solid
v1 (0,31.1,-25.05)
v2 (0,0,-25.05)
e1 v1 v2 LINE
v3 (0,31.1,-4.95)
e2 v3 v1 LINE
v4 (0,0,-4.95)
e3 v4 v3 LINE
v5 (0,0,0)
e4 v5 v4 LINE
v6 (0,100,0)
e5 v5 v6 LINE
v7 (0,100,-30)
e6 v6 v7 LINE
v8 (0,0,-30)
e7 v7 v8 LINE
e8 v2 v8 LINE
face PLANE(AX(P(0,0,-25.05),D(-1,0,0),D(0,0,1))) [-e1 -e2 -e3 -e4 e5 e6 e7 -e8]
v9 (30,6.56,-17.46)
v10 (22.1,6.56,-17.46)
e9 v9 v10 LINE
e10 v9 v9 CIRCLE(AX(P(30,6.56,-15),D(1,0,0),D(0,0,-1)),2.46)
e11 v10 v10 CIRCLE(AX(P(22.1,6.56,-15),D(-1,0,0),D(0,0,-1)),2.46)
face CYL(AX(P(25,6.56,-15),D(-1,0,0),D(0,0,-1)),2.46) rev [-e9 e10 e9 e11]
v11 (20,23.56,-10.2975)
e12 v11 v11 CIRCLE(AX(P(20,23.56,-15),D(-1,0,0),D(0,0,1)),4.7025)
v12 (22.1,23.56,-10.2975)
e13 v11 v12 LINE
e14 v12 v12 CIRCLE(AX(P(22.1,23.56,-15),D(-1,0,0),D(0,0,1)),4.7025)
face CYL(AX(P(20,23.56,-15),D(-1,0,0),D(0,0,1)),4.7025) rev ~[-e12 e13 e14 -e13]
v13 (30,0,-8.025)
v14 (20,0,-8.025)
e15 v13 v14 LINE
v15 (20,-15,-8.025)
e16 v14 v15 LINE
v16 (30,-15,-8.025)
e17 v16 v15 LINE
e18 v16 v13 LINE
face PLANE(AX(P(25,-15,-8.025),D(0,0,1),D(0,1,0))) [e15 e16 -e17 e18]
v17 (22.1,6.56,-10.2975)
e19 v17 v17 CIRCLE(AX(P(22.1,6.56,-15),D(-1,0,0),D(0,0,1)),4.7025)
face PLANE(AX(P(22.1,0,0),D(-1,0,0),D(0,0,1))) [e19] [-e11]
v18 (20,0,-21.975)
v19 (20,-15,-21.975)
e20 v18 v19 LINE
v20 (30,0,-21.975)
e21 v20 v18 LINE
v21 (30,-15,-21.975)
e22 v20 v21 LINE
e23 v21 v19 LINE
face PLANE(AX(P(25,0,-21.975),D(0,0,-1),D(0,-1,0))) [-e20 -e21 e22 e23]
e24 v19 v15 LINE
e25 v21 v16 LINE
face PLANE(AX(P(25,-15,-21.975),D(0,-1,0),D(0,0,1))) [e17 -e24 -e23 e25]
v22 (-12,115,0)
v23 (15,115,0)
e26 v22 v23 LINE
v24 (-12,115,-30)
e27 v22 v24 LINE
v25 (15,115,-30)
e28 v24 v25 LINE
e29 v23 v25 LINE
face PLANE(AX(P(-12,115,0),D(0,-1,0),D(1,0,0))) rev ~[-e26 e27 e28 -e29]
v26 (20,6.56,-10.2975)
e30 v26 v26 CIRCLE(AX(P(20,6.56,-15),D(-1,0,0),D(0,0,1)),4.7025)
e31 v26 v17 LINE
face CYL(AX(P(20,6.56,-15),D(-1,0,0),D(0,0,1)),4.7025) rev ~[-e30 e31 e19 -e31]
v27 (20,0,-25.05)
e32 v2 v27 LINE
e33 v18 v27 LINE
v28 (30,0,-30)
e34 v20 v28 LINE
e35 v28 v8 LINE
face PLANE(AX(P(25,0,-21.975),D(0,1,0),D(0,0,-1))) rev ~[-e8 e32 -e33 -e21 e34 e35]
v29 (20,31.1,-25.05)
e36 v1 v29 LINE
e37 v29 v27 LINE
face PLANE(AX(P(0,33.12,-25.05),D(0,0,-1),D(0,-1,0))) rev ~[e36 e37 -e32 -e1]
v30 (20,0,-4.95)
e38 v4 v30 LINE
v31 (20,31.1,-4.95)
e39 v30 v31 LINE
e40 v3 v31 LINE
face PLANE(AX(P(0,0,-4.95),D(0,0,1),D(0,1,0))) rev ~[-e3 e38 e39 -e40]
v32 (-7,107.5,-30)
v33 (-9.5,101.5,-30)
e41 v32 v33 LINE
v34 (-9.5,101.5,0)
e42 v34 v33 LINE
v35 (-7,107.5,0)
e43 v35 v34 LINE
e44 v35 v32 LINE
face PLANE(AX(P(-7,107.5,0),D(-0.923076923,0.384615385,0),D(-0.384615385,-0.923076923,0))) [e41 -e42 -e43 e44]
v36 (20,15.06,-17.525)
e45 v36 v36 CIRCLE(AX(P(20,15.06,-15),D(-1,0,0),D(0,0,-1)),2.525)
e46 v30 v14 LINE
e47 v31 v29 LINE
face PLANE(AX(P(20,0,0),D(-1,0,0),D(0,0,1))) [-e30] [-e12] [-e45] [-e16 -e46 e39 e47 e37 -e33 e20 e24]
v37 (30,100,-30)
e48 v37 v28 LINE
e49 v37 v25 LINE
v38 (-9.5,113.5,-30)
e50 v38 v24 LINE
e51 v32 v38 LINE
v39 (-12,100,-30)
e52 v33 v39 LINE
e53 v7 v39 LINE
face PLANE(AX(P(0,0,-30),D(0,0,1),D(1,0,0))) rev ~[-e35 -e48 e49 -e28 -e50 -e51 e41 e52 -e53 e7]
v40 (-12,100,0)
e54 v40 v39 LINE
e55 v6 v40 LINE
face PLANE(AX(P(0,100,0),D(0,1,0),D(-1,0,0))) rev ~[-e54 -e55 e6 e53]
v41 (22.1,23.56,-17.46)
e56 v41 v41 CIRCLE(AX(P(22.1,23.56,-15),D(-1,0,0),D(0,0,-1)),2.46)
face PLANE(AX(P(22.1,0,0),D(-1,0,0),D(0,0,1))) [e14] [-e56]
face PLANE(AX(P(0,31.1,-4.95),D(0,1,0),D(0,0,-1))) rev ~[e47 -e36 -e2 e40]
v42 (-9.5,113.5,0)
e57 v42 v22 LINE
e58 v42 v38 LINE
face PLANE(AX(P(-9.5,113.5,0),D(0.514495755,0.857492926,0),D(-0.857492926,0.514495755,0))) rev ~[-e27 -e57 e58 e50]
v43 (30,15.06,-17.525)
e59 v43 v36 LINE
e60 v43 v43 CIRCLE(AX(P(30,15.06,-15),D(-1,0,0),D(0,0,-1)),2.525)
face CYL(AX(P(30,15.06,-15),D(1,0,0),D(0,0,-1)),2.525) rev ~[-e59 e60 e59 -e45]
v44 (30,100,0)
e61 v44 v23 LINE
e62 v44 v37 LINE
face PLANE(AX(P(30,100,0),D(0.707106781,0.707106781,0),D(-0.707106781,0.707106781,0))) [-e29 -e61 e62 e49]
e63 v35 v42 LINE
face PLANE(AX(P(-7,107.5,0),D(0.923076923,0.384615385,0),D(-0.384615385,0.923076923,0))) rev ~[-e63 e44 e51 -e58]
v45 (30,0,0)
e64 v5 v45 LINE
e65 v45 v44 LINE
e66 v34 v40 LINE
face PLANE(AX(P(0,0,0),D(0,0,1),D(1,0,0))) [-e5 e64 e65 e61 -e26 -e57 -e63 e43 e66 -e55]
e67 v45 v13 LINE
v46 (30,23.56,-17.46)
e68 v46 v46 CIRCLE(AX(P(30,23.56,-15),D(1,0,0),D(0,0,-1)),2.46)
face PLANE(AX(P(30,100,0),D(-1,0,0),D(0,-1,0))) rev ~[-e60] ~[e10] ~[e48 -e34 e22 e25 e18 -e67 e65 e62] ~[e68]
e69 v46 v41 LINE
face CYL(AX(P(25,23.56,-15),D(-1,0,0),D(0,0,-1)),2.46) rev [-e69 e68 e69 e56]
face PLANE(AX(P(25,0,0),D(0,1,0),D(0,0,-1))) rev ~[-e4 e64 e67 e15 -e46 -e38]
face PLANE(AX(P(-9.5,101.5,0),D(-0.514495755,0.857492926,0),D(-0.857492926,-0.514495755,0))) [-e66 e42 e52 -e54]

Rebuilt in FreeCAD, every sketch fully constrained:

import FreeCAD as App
import Part
import Sketcher

doc = App.newDocument("Part")
body = doc.addObject("PartDesign::Body", "Body")

sketch1 = body.newObject("Sketcher::SketchObject", "Sketch")
sketch1.AttachmentSupport = (doc.getObject("XY_Plane"), [""])
sketch1.MapMode = "FlatFace"
sketch1.addGeometry([
    Part.LineSegment(App.Vector(0, 40, 0), App.Vector(0, 0, 0)),
    Part.LineSegment(App.Vector(0, 0, 0), App.Vector(25, 0, 0)),
    Part.LineSegment(App.Vector(25, 0, 0), App.Vector(25, 40, 0)),
    Part.LineSegment(App.Vector(25, 40, 0), App.Vector(0, 40, 0)),
], False)
sketch1.addConstraint([
    Sketcher.Constraint("Coincident", 0, 2, 1, 1),
    Sketcher.Constraint("Coincident", 1, 2, 2, 1),
    Sketcher.Constraint("Coincident", 2, 2, 3, 1),
    Sketcher.Constraint("Coincident", 3, 2, 0, 1),
    Sketcher.Constraint("Vertical", 0),
    Sketcher.Constraint("Horizontal", 1),
    Sketcher.Constraint("Vertical", 2),
    Sketcher.Constraint("Horizontal", 3),
    Sketcher.Constraint("Coincident", 0, 2, -1, 1),
    Sketcher.Constraint("DistanceX", 1, 1, 1, 2, 25.0),
    Sketcher.Constraint("DistanceY", 0, 2, 0, 1, 40.0),
])
pad1 = body.newObject("PartDesign::Pad", "Pad")
pad1.Profile = sketch1
pad1.Length = 30
pad1.Reversed = True

sketch2 = body.newObject("Sketcher::SketchObject", "Sketch001")
sketch2.AttachmentSupport = (doc.getObject("YZ_Plane"), [""])
sketch2.MapMode = "FlatFace"
sketch2.AttachmentOffset = App.Placement(App.Vector(0, 0, 25), App.Rotation())
sketch2.addGeometry(Part.Circle(App.Vector(6.6, -15, 0), App.Vector(0, 0, 1), 2.5), False)
sketch2.addConstraint([
    Sketcher.Constraint("Diameter", 0, 4.92),
    Sketcher.Constraint("DistanceY", 0, 3, -1, 1, 15.0),
    Sketcher.Constraint("DistanceX", -1, 1, 0, 3, 6.56),
])
pocket1 = body.newObject("PartDesign::Pocket", "Pocket")
pocket1.Profile = sketch2
pocket1.Length = 30

sketch3 = body.newObject("Sketcher::SketchObject", "Sketch002")
sketch3.AttachmentSupport = (doc.getObject("YZ_Plane"), [""])
sketch3.MapMode = "FlatFace"
sketch3.addGeometry([
    Part.LineSegment(App.Vector(0, -25, 0), App.Vector(0, -5, 0)),
    Part.LineSegment(App.Vector(0, -5, 0), App.Vector(33, -5, 0)),
    Part.LineSegment(App.Vector(33, -5, 0), App.Vector(33, -25, 0)),
    Part.LineSegment(App.Vector(33, -25, 0), App.Vector(0, -25, 0)),
], False)
sketch3.addConstraint([
    Sketcher.Constraint("Coincident", 0, 2, 1, 1),
    Sketcher.Constraint("Coincident", 1, 2, 2, 1),
    Sketcher.Constraint("Coincident", 2, 2, 3, 1),
    Sketcher.Constraint("Coincident", 3, 2, 0, 1),
    Sketcher.Constraint("Vertical", 0),
    Sketcher.Constraint("Horizontal", 1),
    Sketcher.Constraint("Vertical", 2),
    Sketcher.Constraint("Horizontal", 3),
    Sketcher.Constraint("PointOnObject", 0, 2, -2),
    Sketcher.Constraint("DistanceY", 0, 1, 0, 2, 20.1),
    Sketcher.Constraint("DistanceX", 1, 1, 1, 2, 33.12),
    Sketcher.Constraint("DistanceY", 0, 2, -1, 1, 4.95),
])
pocket2 = body.newObject("PartDesign::Pocket", "Pocket001")
pocket2.Profile = sketch3
pocket2.Length = 20
pocket2.Reversed = True

sketch4 = body.newObject("Sketcher::SketchObject", "Sketch003")
sketch4.AttachmentSupport = (doc.getObject("XZ_Plane"), [""])
sketch4.MapMode = "FlatFace"
sketch4.addGeometry([
    Part.LineSegment(App.Vector(25, -8, 0), App.Vector(20, -8, 0)),
    Part.LineSegment(App.Vector(20, -8, 0), App.Vector(20, -22, 0)),
    Part.LineSegment(App.Vector(20, -22, 0), App.Vector(25, -22, 0)),
    Part.LineSegment(App.Vector(25, -22, 0), App.Vector(25, -8, 0)),
], False)
sketch4.addConstraint([
    Sketcher.Constraint("Coincident", 0, 2, 1, 1),
    Sketcher.Constraint("Coincident", 1, 2, 2, 1),
    Sketcher.Constraint("Coincident", 2, 2, 3, 1),
    Sketcher.Constraint("Coincident", 3, 2, 0, 1),
    Sketcher.Constraint("Horizontal", 0),
    Sketcher.Constraint("Vertical", 1),
    Sketcher.Constraint("Horizontal", 2),
    Sketcher.Constraint("Vertical", 3),
    Sketcher.Constraint("DistanceY", 1, 2, 1, 1, 13.95),
    Sketcher.Constraint("DistanceX", 0, 2, 0, 1, 5.0),
    Sketcher.Constraint("DistanceX", -1, 1, 0, 2, 20.0),
    Sketcher.Constraint("DistanceY", 0, 2, -1, 1, 8.025),
])
pad2 = body.newObject("PartDesign::Pad", "Pad001")
pad2.Profile = sketch4
pad2.Length = 15

sketch5 = body.newObject("Sketcher::SketchObject", "Sketch004")
sketch5.AttachmentSupport = (doc.getObject("YZ_Plane"), [""])
sketch5.MapMode = "FlatFace"
sketch5.AttachmentOffset = App.Placement(App.Vector(0, 0, 20), App.Rotation())
sketch5.addGeometry([
    Part.Circle(App.Vector(6.6, -15, 0), App.Vector(0, 0, 1), 4.7),
    Part.Circle(App.Vector(6.6, -15, 0), App.Vector(0, 0, 1), 2.5),
], False)
sketch5.addConstraint([
    Sketcher.Constraint("Coincident", 1, 3, 0, 3),
    Sketcher.Constraint("Diameter", 0, 9.405),
    Sketcher.Constraint("Diameter", 1, 4.92),
    Sketcher.Constraint("DistanceY", 0, 3, -1, 1, 15.0),
    Sketcher.Constraint("DistanceX", -1, 1, 0, 3, 6.56),
])
pocket3 = body.newObject("PartDesign::Pocket", "Pocket002")
pocket3.Profile = sketch5
pocket3.Length = 2.1
pocket3.Reversed = True

sketch6 = body.newObject("Sketcher::SketchObject", "Sketch005")
sketch6.AttachmentSupport = (doc.getObject("YZ_Plane"), [""])
sketch6.MapMode = "FlatFace"
sketch6.AttachmentOffset = App.Placement(App.Vector(0, 0, 25), App.Rotation())
sketch6.addGeometry(Part.Circle(App.Vector(23.6, -15, 0), App.Vector(0, 0, 1), 2.5), False)
sketch6.addConstraint([
    Sketcher.Constraint("Diameter", 0, 4.92),
    Sketcher.Constraint("DistanceY", 0, 3, -1, 1, 15.0),
    Sketcher.Constraint("DistanceX", -1, 1, 0, 3, 23.56),
])
pocket4 = body.newObject("PartDesign::Pocket", "Pocket003")
pocket4.Profile = sketch6
pocket4.Length = 10

sketch7 = body.newObject("Sketcher::SketchObject", "Sketch006")
sketch7.AttachmentSupport = (doc.getObject("YZ_Plane"), [""])
sketch7.MapMode = "FlatFace"
sketch7.AttachmentOffset = App.Placement(App.Vector(0, 0, 20), App.Rotation())
sketch7.addGeometry([
    Part.Circle(App.Vector(23.6, -15, 0), App.Vector(0, 0, 1), 4.7),
    Part.Circle(App.Vector(23.6, -15, 0), App.Vector(0, 0, 1), 2.5),
], False)
sketch7.addConstraint([
    Sketcher.Constraint("Coincident", 1, 3, 0, 3),
    Sketcher.Constraint("Diameter", 0, 9.405),
    Sketcher.Constraint("Diameter", 1, 4.92),
    Sketcher.Constraint("DistanceY", 0, 3, -1, 1, 15.0),
    Sketcher.Constraint("DistanceX", -1, 1, 0, 3, 23.56),
])
pocket5 = body.newObject("PartDesign::Pocket", "Pocket004")
pocket5.Profile = sketch7
pocket5.Length = 2.1
pocket5.Reversed = True

sketch8 = body.newObject("Sketcher::SketchObject", "Sketch007")
sketch8.AttachmentSupport = (doc.getObject("YZ_Plane"), [""])
sketch8.MapMode = "FlatFace"
sketch8.AttachmentOffset = App.Placement(App.Vector(0, 0, 25), App.Rotation())
sketch8.addGeometry([
    Part.LineSegment(App.Vector(0, -30, 0), App.Vector(40, -30, 0)),
    Part.LineSegment(App.Vector(40, -30, 0), App.Vector(40, 0, 0)),
    Part.LineSegment(App.Vector(40, 0, 0), App.Vector(0, 0, 0)),
    Part.LineSegment(App.Vector(0, 0, 0), App.Vector(0, -8, 0)),
    Part.LineSegment(App.Vector(0, -8, 0), App.Vector(-15, -8, 0)),
    Part.LineSegment(App.Vector(-15, -8, 0), App.Vector(-15, -22, 0)),
    Part.LineSegment(App.Vector(-15, -22, 0), App.Vector(0, -22, 0)),
    Part.LineSegment(App.Vector(0, -22, 0), App.Vector(0, -30, 0)),
    Part.Circle(App.Vector(6.6, -15, 0), App.Vector(0, 0, 1), 2.5),
    Part.Circle(App.Vector(23.6, -15, 0), App.Vector(0, 0, 1), 2.5),
], False)
sketch8.addConstraint([
    Sketcher.Constraint("Coincident", 0, 2, 1, 1),
    Sketcher.Constraint("Coincident", 1, 2, 2, 1),
    Sketcher.Constraint("Coincident", 2, 2, 3, 1),
    Sketcher.Constraint("Coincident", 3, 2, 4, 1),
    Sketcher.Constraint("Coincident", 4, 2, 5, 1),
    Sketcher.Constraint("Coincident", 5, 2, 6, 1),
    Sketcher.Constraint("Coincident", 6, 2, 7, 1),
    Sketcher.Constraint("Coincident", 7, 2, 0, 1),
    Sketcher.Constraint("Horizontal", 0),
    Sketcher.Constraint("Vertical", 1),
    Sketcher.Constraint("Horizontal", 2),
    Sketcher.Constraint("Vertical", 3),
    Sketcher.Constraint("Horizontal", 4),
    Sketcher.Constraint("Vertical", 5),
    Sketcher.Constraint("Horizontal", 6),
    Sketcher.Constraint("Vertical", 7),
    Sketcher.Constraint("Coincident", 2, 2, -1, 1),
    Sketcher.Constraint("Equal", 8, 9),
    Sketcher.Constraint("PointOnObject", 6, 2, -2),
    Sketcher.Constraint("Horizontal", 8, 3, 9, 3),
    Sketcher.Constraint("Equal", 3, 7),
    Sketcher.Constraint("Diameter", 8, 4.92),
    Sketcher.Constraint("DistanceX", 0, 1, 0, 2, 40.0),
    Sketcher.Constraint("DistanceX", 4, 2, 4, 1, 15.0),
    Sketcher.Constraint("DistanceY", 1, 1, 1, 2, 30.0),
    Sketcher.Constraint("DistanceY", 8, 3, -1, 1, 15.0),
    Sketcher.Constraint("DistanceX", 8, 3, 9, 3, 17.0),
    Sketcher.Constraint("DistanceY", 5, 2, 5, 1, 13.95),
    Sketcher.Constraint("DistanceX", -1, 1, 8, 3, 6.56),
])
pad3 = body.newObject("PartDesign::Pad", "Pad002")
pad3.Profile = sketch8
pad3.Length = 5

sketch9 = body.newObject("Sketcher::SketchObject", "Sketch008")
sketch9.AttachmentSupport = (doc.getObject("XZ_Plane"), [""])
sketch9.MapMode = "FlatFace"
sketch9.AttachmentOffset = App.Placement(App.Vector(0, 0, -40), App.Rotation())
sketch9.addGeometry([
    Part.LineSegment(App.Vector(30, -30, 0), App.Vector(0, -30, 0)),
    Part.LineSegment(App.Vector(0, -30, 0), App.Vector(0, 0, 0)),
    Part.LineSegment(App.Vector(0, 0, 0), App.Vector(30, 0, 0)),
    Part.LineSegment(App.Vector(30, 0, 0), App.Vector(30, -30, 0)),
], False)
sketch9.addConstraint([
    Sketcher.Constraint("Coincident", 0, 2, 1, 1),
    Sketcher.Constraint("Coincident", 1, 2, 2, 1),
    Sketcher.Constraint("Coincident", 2, 2, 3, 1),
    Sketcher.Constraint("Coincident", 3, 2, 0, 1),
    Sketcher.Constraint("Horizontal", 0),
    Sketcher.Constraint("Vertical", 1),
    Sketcher.Constraint("Horizontal", 2),
    Sketcher.Constraint("Vertical", 3),
    Sketcher.Constraint("Coincident", 1, 2, -1, 1),
    Sketcher.Constraint("Equal", 2, 1),
    Sketcher.Constraint("DistanceX", 0, 2, 0, 1, 30.0),
])
pad4 = body.newObject("PartDesign::Pad", "Pad003")
pad4.Profile = sketch9
pad4.Length = 30
pad4.Reversed = True

sketch10 = body.newObject("Sketcher::SketchObject", "Sketch009")
sketch10.AttachmentSupport = (doc.getObject("YZ_Plane"), [""])
sketch10.MapMode = "FlatFace"
sketch10.AttachmentOffset = App.Placement(App.Vector(0, 0, 30), App.Rotation())
sketch10.addGeometry(Part.Circle(App.Vector(15.1, -15, 0), App.Vector(0, 0, 1), 2.5), False)
sketch10.addConstraint([
    Sketcher.Constraint("Diameter", 0, 5.05),
    Sketcher.Constraint("DistanceY", 0, 3, -1, 1, 15.0),
    Sketcher.Constraint("DistanceX", -1, 1, 0, 3, 15.06),
])
pocket6 = body.newObject("PartDesign::Pocket", "Pocket005")
pocket6.Profile = sketch10
pocket6.Length = 30

sketch11 = body.newObject("Sketcher::SketchObject", "Sketch010")
sketch11.AttachmentSupport = (doc.getObject("XY_Plane"), [""])
sketch11.MapMode = "FlatFace"
sketch11.addGeometry([
    Part.LineSegment(App.Vector(0, 70, 0), App.Vector(30, 70, 0)),
    Part.LineSegment(App.Vector(30, 70, 0), App.Vector(30, 100, 0)),
    Part.LineSegment(App.Vector(30, 100, 0), App.Vector(15, 115, 0)),
    Part.LineSegment(App.Vector(15, 115, 0), App.Vector(-12, 115, 0)),
    Part.LineSegment(App.Vector(-12, 115, 0), App.Vector(-9.5, 113.5, 0)),
    Part.LineSegment(App.Vector(-9.5, 113.5, 0), App.Vector(-7, 107.5, 0)),
    Part.LineSegment(App.Vector(-7, 107.5, 0), App.Vector(-9.5, 101.5, 0)),
    Part.LineSegment(App.Vector(-9.5, 101.5, 0), App.Vector(-12, 100, 0)),
    Part.LineSegment(App.Vector(-12, 100, 0), App.Vector(0, 100, 0)),
    Part.LineSegment(App.Vector(0, 100, 0), App.Vector(0, 70, 0)),
], False)
sketch11.addConstraint([
    Sketcher.Constraint("Coincident", 0, 2, 1, 1),
    Sketcher.Constraint("Coincident", 1, 2, 2, 1),
    Sketcher.Constraint("Coincident", 2, 2, 3, 1),
    Sketcher.Constraint("Coincident", 3, 2, 4, 1),
    Sketcher.Constraint("Coincident", 4, 2, 5, 1),
    Sketcher.Constraint("Coincident", 5, 2, 6, 1),
    Sketcher.Constraint("Coincident", 6, 2, 7, 1),
    Sketcher.Constraint("Coincident", 7, 2, 8, 1),
    Sketcher.Constraint("Coincident", 8, 2, 9, 1),
    Sketcher.Constraint("Coincident", 9, 2, 0, 1),
    Sketcher.Constraint("Horizontal", 0),
    Sketcher.Constraint("Vertical", 1),
    Sketcher.Constraint("Horizontal", 3),
    Sketcher.Constraint("Horizontal", 8),
    Sketcher.Constraint("Vertical", 9),
    Sketcher.Constraint("PointOnObject", 8, 2, -2),
    Sketcher.Constraint("Horizontal", 1, 2, 7, 2),
    Sketcher.Constraint("Vertical", 4, 2, 6, 2),
    Sketcher.Constraint("Vertical", 3, 2, 7, 2),
    Sketcher.Constraint("Equal", 0, 1),
    Sketcher.Constraint("Equal", 5, 6),
    Sketcher.Constraint("Equal", 4, 7),
    Sketcher.Constraint("DistanceX", 8, 1, 8, 2, 12.0),
    Sketcher.Constraint("DistanceX", -1, 1, 2, 2, 15.0),
    Sketcher.Constraint("DistanceX", 2, 2, 1, 2, 15.0),
    Sketcher.Constraint("DistanceY", 1, 2, 2, 2, 15.0),
    Sketcher.Constraint("DistanceY", 6, 2, 4, 2, 12.0),
    Sketcher.Constraint("DistanceY", -1, 1, 0, 2, 70.0),
    Sketcher.Constraint("DistanceX", 5, 2, -1, 1, 7.0),
    Sketcher.Constraint("Distance", 5, 6.5),
])
pad5 = body.newObject("PartDesign::Pad", "Pad004")
pad5.Profile = sketch11
pad5.Length = 30
pad5.Reversed = True

sketch12 = body.newObject("Sketcher::SketchObject", "Sketch011")
sketch12.AttachmentSupport = (doc.getObject("YZ_Plane"), [""])
sketch12.MapMode = "FlatFace"
sketch12.addGeometry([
    Part.LineSegment(App.Vector(33.1, -5, 0), App.Vector(33.1, -25.1, 0)),
    Part.LineSegment(App.Vector(33.1, -25.1, 0), App.Vector(31.1, -25.1, 0)),
    Part.LineSegment(App.Vector(31.1, -25.1, 0), App.Vector(31.1, -5, 0)),
    Part.LineSegment(App.Vector(31.1, -5, 0), App.Vector(33.1, -5, 0)),
], False)
sketch12.addConstraint([
    Sketcher.Constraint("Coincident", 0, 2, 1, 1),
    Sketcher.Constraint("Coincident", 1, 2, 2, 1),
    Sketcher.Constraint("Coincident", 2, 2, 3, 1),
    Sketcher.Constraint("Coincident", 3, 2, 0, 1),
    Sketcher.Constraint("Vertical", 0),
    Sketcher.Constraint("Horizontal", 1),
    Sketcher.Constraint("Vertical", 2),
    Sketcher.Constraint("Horizontal", 3),
    Sketcher.Constraint("DistanceX", 1, 2, 1, 1, 2.02),
    Sketcher.Constraint("DistanceY", 0, 2, 0, 1, 20.1),
    Sketcher.Constraint("DistanceX", -1, 1, 1, 2, 31.1),
    Sketcher.Constraint("DistanceY", 0, 2, -1, 1, 25.05),
])
pad6 = body.newObject("PartDesign::Pad", "Pad005")
pad6.Profile = sketch12
pad6.Length = 20

doc.recompute()
